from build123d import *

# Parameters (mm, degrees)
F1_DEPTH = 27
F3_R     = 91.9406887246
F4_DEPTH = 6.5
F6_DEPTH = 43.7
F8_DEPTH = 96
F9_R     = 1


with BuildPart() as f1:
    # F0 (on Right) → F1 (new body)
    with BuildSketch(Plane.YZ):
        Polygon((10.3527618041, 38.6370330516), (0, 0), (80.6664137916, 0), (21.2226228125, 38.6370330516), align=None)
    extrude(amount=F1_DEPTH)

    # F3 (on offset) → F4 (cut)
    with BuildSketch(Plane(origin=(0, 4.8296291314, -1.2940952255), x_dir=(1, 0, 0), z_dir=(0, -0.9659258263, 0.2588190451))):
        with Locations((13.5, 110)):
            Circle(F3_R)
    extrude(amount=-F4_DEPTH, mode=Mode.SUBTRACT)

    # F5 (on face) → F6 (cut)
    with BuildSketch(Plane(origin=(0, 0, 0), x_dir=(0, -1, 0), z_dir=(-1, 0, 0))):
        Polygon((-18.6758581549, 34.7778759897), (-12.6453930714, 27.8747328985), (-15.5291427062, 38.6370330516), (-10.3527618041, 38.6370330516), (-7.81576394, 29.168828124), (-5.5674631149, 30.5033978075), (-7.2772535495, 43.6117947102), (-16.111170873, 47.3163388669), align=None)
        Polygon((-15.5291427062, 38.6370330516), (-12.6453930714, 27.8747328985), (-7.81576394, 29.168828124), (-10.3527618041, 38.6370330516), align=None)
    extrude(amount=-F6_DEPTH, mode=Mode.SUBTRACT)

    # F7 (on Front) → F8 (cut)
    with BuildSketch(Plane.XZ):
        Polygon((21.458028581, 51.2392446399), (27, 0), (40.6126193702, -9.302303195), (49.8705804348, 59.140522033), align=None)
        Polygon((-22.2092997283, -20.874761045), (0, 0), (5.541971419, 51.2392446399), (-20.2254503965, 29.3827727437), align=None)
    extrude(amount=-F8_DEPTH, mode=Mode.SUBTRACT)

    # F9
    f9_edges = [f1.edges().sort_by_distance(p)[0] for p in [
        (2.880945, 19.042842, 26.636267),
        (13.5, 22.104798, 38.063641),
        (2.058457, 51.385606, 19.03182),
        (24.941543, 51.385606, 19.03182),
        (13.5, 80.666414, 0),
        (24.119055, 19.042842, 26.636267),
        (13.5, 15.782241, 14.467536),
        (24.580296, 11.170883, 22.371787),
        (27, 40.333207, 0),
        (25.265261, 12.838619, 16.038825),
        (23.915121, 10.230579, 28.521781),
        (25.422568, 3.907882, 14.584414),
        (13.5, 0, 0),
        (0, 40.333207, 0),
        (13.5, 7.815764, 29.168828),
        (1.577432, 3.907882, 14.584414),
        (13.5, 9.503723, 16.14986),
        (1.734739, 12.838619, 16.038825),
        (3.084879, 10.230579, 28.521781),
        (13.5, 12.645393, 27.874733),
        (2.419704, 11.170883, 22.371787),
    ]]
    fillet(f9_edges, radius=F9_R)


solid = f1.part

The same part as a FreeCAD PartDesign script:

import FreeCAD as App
import Part
import Sketcher

V = App.Vector
Q = App.Units.Quantity


def add_polygon(sketch, points):
    """Adds a closed chain of lines whose ends are joined by coincident constraints."""
    first, n = sketch.GeometryCount, len(points)
    for a, b in zip(points, points[1:] + points[:1]):
        sketch.addGeometry(Part.LineSegment(App.Vector(*a, 0), App.Vector(*b, 0)), False)
    for i in range(n):
        sketch.addConstraint(Sketcher.Constraint("Coincident", first + i, 2, first + (i + 1) % n, 1))

doc = App.newDocument("Part")
params = doc.addObject("Spreadsheet::Sheet", "Params")
for row, (alias, value) in enumerate([
    ("sketch1_length", "40 mm"),
    ("pad1_length", "27 mm"),
    ("pocket1_length", "6.5 mm"),
    ("sketch3_length", "5 mm"),
    ("pocket2_length", "43.7 mm"),
    ("pocket3_length", "96 mm"),
    ("fillet_radius", "1 mm"),
], start=1):
    params.set(f"A{row}", alias)
    params.set(f"B{row}", "=" + value)
    params.setAlias(f"B{row}", alias)

body = doc.addObject("PartDesign::Body", "Body")

# Sketch on YZ plane
sketch1 = doc.addObject("Sketcher::SketchObject", "Sketch")
body.addObject(sketch1)
sketch1.AttachmentSupport = (doc.YZ_Plane, [""])
sketch1.MapMode = "FlatFace"
add_polygon(sketch1, [(10, 39), (0, 0), (81, 0), (21, 39)])  # lines 0-3
sketch1.addConstraint(Sketcher.Constraint("Horizontal", 1))
sketch1.addConstraint(Sketcher.Constraint("Horizontal", 3))
sketch1.addConstraint(Sketcher.Constraint("Coincident", 0, 2, -1, 1))
sketch1.addConstraint(Sketcher.Constraint("Angle", 0, Q("-105 deg")))
sketch1.addConstraint(Sketcher.Constraint("Distance", 0, 40.0))
sketch1.addConstraint(Sketcher.Constraint("Distance", 2, 70.897))
sketch1.addConstraint(Sketcher.Constraint("DistanceX", 3, 2, 3, 1, 10.869861))
sketch1.setExpression("Constraints[8]", "Params.sketch1_length")
pad1 = doc.addObject("PartDesign::Pad", "Pad")
body.addObject(pad1)
pad1.Profile = sketch1
pad1.setExpression("Length", "Params.pad1_length")

# Sketch on an angled plane
sketch2 = doc.addObject("Sketcher::SketchObject", "Sketch001")
body.addObject(sketch2)
sketch2.Placement = App.Placement(V(0, 4.829629, -1.294095), App.Rotation(V(1, 0, 0), V(0, 0.258819045, 0.965925826), V(0, -0.965925826, 0.258819045), "ZXY"))
sketch2.addGeometry(Part.Circle(V(14, 110, 0), V(0, 0, 1), 92), False)
sketch2.addConstraint(Sketcher.Constraint("DistanceY", -1, 1, 0, 3, 110.0))
sketch2.addConstraint(Sketcher.Constraint("DistanceX", -1, 1, 0, 3, 13.5))
sketch2.addConstraint(Sketcher.Constraint("Diameter", 0, 183.881377))
pocket1 = doc.addObject("PartDesign::Pocket", "Pocket")
body.addObject(pocket1)
pocket1.Profile = sketch2
pocket1.setExpression("Length", "Params.pocket1_length")

# Sketch on YZ plane
sketch3 = doc.addObject("Sketcher::SketchObject", "Sketch002")
body.addObject(sketch3)
sketch3.AttachmentSupport = (doc.YZ_Plane, [""])
sketch3.MapMode = "FlatFace"
add_polygon(sketch3, [(18.7, 34.8), (12.6, 27.9), (7.8, 29.2), (5.6, 30.5), (7.3, 43.6), (16.1, 47.3)])  # lines 0-5
sketch3.addConstraint(Sketcher.Constraint("Angle", 1, Q("165 deg")))
sketch3.addConstraint(Sketcher.Constraint("Distance", 1, 5.0))
sketch3.addConstraint(Sketcher.Constraint("DistanceX", 2, 2, 1, 2, 2.248301))
sketch3.addConstraint(Sketcher.Constraint("Distance", 2, 2.614562))
sketch3.addConstraint(Sketcher.Constraint("DistanceY", -1, 1, 1, 2, 29.168828))
sketch3.addConstraint(Sketcher.Constraint("DistanceX", -1, 1, 4, 2, 16.111171))
sketch3.addConstraint(Sketcher.Constraint("DistanceY", -1, 1, 4, 2, 47.316339))
sketch3.addConstraint(Sketcher.Constraint("DistanceX", -1, 1, 5, 2, 18.675858))
sketch3.addConstraint(Sketcher.Constraint("DistanceX", 2, 2, 3, 2, 1.70979))
sketch3.addConstraint(Sketcher.Constraint("DistanceY", 0, 2, 3, 2, 15.737062))
sketch3.addConstraint(Sketcher.Constraint("DistanceY", 2, 2, 5, 2, 4.274478))
sketch3.addConstraint(Sketcher.Constraint("Distance", 0, 9.166237))
sketch3.setExpression("Constraints[7]", "Params.sketch3_length")
pocket2 = doc.addObject("PartDesign::Pocket", "Pocket001")
body.addObject(pocket2)
pocket2.Profile = sketch3
pocket2.setExpression("Length", "Params.pocket2_length")
pocket2.Reversed = True

# Sketch on XZ plane
sketch4 = doc.addObject("Sketcher::SketchObject", "Sketch003")
body.addObject(sketch4)
sketch4.AttachmentSupport = (doc.XZ_Plane, [""])
sketch4.MapMode = "FlatFace"
add_polygon(sketch4, [(21, 51), (27, 0), (41, -9), (50, 59)])  # lines 0-3
add_polygon(sketch4, [(-22, -21), (0, 0), (6, 51), (-20, 29)])  # lines 4-7
sketch4.addConstraint(Sketcher.Constraint("Coincident", 4, 2, -1, 1))
sketch4.addConstraint(Sketcher.Constraint("PointOnObject", 0, 2, -1))
sketch4.addConstraint(Sketcher.Constraint("Horizontal", 3, 2, 5, 2))
sketch4.addConstraint(Sketcher.Constraint("Equal", 0, 5))
sketch4.addConstraint(Sketcher.Constraint("DistanceX", -1, 1, 0, 2, 27.0))
sketch4.addConstraint(Sketcher.Constraint("DistanceX", 7, 2, -1, 1, 22.2093))
sketch4.addConstraint(Sketcher.Constraint("Distance", 0, 51.538079))
sketch4.addConstraint(Sketcher.Constraint("Distance", 2, 69.066129))
sketch4.addConstraint(Sketcher.Constraint("Distance", 6, 33.788539))
sketch4.addConstraint(Sketcher.Constraint("DistanceX", -1, 1, 1, 2, 40.612619))
sketch4.addConstraint(Sketcher.Constraint("DistanceX", -1, 1, 2, 2, 49.87058))
sketch4.addConstraint(Sketcher.Constraint("DistanceX", -1, 1, 3, 2, 21.458029))
sketch4.addConstraint(Sketcher.Constraint("DistanceX", 6, 2, -1, 1, 20.22545))
sketch4.addConstraint(Sketcher.Constraint("DistanceY", 7, 2, -1, 1, 20.874761))
sketch4.addConstraint(Sketcher.Constraint("Distance", 1, 16.487457))
pocket3 = doc.addObject("PartDesign::Pocket", "Pocket002")
body.addObject(pocket3)
pocket3.Profile = sketch4
pocket3.setExpression("Length", "Params.pocket3_length")
doc.recompute()

fillet = doc.addObject("PartDesign::Fillet", "Fillet")
body.addObject(fillet)
fillet.Base = (pocket3, ["Edge1"])
fillet.UseAllEdges = True
fillet.setExpression("Radius", "Params.fillet_radius")

doc.recompute()
